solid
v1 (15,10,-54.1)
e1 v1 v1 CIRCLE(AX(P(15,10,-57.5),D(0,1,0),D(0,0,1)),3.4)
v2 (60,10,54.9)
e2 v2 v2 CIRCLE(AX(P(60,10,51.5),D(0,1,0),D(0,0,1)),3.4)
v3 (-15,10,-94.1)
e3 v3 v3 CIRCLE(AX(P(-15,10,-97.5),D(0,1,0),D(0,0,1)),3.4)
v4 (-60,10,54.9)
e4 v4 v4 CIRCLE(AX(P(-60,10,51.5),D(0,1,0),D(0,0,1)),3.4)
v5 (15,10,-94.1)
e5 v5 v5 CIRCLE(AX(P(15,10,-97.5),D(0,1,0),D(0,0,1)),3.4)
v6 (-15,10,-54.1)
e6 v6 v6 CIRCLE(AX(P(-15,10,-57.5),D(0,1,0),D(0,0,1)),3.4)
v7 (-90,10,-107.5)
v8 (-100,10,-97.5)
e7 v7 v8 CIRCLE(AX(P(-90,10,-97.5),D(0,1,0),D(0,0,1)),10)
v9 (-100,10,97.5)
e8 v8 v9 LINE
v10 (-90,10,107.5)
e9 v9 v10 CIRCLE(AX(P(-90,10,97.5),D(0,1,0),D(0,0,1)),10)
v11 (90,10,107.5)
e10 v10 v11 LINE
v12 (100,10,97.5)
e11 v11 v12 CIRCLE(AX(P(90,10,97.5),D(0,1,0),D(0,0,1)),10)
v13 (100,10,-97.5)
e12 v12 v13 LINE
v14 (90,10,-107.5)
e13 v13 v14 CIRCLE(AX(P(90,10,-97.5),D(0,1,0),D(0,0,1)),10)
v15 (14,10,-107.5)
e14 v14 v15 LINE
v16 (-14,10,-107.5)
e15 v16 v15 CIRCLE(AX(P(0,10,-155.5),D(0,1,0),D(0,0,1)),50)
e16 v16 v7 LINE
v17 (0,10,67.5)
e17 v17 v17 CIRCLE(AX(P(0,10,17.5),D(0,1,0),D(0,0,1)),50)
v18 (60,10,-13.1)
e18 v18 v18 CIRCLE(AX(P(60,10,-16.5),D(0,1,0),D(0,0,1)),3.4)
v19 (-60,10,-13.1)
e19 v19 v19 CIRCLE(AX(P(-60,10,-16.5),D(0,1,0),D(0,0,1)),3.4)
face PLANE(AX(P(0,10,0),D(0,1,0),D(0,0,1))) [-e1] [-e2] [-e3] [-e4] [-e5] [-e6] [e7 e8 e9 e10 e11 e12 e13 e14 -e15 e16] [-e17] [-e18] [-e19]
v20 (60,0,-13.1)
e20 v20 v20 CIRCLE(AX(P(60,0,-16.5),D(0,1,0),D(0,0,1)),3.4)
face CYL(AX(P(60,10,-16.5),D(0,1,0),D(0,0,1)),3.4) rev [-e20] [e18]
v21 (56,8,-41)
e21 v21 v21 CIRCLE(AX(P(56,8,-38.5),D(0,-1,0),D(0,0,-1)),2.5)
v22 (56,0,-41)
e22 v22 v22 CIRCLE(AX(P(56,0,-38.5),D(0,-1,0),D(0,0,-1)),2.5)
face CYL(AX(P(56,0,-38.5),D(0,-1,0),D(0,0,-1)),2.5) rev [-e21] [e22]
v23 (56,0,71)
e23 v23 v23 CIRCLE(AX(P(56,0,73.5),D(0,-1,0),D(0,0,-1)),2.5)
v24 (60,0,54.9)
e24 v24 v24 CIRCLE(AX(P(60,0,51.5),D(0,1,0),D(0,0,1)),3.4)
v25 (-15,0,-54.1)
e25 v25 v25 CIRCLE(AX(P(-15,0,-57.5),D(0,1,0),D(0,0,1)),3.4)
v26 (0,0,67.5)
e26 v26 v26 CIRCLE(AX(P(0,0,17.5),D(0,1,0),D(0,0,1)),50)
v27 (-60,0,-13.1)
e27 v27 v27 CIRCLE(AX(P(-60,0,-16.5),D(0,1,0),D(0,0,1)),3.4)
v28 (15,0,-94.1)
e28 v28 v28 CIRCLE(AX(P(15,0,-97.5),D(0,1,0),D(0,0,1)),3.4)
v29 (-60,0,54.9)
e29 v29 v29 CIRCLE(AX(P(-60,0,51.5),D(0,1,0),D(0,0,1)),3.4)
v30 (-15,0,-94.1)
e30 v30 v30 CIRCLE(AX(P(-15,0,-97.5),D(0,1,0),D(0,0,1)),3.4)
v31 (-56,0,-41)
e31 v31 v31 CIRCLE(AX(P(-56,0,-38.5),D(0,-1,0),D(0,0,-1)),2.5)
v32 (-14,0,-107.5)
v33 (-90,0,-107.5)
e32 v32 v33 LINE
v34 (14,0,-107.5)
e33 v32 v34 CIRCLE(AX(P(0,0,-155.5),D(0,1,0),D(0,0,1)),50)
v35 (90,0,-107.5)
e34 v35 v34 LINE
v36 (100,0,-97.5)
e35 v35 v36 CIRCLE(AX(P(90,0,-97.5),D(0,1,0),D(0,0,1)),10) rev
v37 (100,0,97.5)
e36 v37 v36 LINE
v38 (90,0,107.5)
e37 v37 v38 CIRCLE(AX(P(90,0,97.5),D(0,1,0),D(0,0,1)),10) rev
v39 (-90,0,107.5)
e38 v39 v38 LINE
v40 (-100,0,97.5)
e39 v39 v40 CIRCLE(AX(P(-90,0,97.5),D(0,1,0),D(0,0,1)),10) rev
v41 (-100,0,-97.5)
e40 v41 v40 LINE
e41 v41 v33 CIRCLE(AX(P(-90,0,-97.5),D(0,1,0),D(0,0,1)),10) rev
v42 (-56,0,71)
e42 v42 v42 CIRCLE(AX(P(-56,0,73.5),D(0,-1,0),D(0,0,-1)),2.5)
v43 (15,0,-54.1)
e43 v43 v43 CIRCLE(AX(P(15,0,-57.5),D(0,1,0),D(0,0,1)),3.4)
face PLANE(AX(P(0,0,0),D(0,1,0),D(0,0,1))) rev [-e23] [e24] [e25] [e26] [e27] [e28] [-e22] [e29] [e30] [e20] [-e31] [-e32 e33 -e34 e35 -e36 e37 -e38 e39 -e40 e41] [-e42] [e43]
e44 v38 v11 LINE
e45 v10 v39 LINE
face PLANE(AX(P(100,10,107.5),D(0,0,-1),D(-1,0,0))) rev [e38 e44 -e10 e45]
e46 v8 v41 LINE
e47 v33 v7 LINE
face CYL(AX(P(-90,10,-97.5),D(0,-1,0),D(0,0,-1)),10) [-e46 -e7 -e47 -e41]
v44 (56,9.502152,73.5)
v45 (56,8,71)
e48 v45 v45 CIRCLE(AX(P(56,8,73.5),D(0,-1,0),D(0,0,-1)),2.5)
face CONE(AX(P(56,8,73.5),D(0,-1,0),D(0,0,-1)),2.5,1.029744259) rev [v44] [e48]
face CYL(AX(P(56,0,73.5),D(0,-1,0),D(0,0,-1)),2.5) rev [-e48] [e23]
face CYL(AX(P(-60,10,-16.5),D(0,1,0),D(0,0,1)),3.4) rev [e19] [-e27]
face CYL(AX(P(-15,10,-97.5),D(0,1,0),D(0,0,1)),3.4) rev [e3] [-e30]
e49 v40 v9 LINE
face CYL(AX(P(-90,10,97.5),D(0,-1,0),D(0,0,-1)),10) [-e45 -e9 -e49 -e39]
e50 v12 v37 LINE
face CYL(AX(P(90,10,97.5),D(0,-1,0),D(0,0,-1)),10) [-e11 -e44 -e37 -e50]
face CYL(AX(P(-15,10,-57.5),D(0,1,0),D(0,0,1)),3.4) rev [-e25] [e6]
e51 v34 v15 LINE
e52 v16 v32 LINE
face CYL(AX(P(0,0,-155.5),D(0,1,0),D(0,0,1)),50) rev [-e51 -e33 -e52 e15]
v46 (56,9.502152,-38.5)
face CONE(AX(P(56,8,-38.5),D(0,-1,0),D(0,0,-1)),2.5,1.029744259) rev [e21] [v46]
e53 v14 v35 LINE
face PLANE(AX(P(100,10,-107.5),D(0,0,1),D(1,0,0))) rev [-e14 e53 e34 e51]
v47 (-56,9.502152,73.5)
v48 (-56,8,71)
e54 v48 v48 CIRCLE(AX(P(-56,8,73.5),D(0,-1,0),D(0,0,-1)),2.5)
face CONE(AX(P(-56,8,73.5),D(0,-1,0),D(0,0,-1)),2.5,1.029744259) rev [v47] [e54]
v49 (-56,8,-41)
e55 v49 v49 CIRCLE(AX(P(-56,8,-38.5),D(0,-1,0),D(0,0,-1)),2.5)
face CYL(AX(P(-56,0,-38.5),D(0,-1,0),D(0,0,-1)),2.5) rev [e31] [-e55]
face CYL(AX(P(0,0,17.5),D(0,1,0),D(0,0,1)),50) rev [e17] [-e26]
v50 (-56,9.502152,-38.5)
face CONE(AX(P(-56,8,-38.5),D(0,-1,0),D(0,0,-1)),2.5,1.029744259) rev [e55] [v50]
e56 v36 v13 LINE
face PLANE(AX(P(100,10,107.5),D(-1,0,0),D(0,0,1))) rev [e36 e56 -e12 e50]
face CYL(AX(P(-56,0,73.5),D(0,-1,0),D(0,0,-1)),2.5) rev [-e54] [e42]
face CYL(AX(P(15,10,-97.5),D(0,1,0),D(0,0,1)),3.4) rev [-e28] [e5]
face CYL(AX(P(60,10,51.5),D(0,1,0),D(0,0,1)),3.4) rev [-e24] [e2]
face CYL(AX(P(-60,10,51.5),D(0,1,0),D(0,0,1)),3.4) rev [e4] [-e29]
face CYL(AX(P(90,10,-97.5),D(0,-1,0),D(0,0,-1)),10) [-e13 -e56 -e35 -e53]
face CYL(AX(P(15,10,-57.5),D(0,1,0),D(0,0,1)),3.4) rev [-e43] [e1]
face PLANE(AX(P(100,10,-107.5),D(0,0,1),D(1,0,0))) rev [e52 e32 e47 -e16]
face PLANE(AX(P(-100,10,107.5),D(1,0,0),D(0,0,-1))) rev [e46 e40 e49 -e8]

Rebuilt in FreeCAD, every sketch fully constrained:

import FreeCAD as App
import Part
import Sketcher
Q = App.Units.Quantity


def edges_at(feature, points):
    """Names of the edges that pass closest to the given points."""
    edges = feature.Shape.Edges
    near = lambda p: min(range(len(edges)), key=lambda i: edges[i].distToShape(Part.Vertex(*p))[0])
    return sorted({f"Edge{near(p) + 1}" for p in points})


def add_polygon(sketch, points):
    """Adds a closed chain of lines whose ends are joined by coincident constraints."""
    first, n = sketch.GeometryCount, len(points)
    for a, b in zip(points, points[1:] + points[:1]):
        sketch.addGeometry(Part.LineSegment(App.Vector(*a, 0), App.Vector(*b, 0)), False)
    for i in range(n):
        sketch.addConstraint(Sketcher.Constraint("Coincident", first + i, 2, first + (i + 1) % n, 1))

doc = App.newDocument("Part")
body = doc.addObject("PartDesign::Body", "Body")

# Sketch on XZ plane
sketch1 = doc.addObject("Sketcher::SketchObject", "Sketch")
body.addObject(sketch1)
sketch1.AttachmentSupport = (doc.XZ_Plane, [""])
sketch1.MapMode = "FlatFace"
add_polygon(sketch1, [(-100, -108), (-100, 108), (100, 108), (100, -108)])  # lines 0-3
sketch1.addConstraint([
    Sketcher.Constraint("Vertical", 0),
    Sketcher.Constraint("Horizontal", 1),
    Sketcher.Constraint("Vertical", 2),
    Sketcher.Constraint("Horizontal", 3),
    Sketcher.Constraint("Symmetric", 0, 2, 2, 2, -1, 1),
    Sketcher.Constraint("DistanceX", 1, 1, 1, 2, Q("200 mm")),
    Sketcher.Constraint("DistanceY", 0, 1, 0, 2, Q("215 mm")),
])
pad1 = doc.addObject("PartDesign::Pad", "Pad")
body.addObject(pad1)
pad1.Profile = sketch1
pad1.Length = 10
pad1.Reversed = True

# Sketch on XZ plane
sketch2 = doc.addObject("Sketcher::SketchObject", "Sketch001")
body.addObject(sketch2)
sketch2.AttachmentSupport = (doc.XZ_Plane, [""])
sketch2.MapMode = "FlatFace"
sketch2.AttachmentOffset = App.Placement(App.Vector(0, 0, -10), App.Rotation())
sketch2.addGeometry([
    Part.Circle(App.Vector(-60, -16.5, 0), App.Vector(0, 0, 1), 3.4),
    Part.Circle(App.Vector(60, -16.5, 0), App.Vector(0, 0, 1), 3.4),
    Part.Circle(App.Vector(-60, 51.5, 0), App.Vector(0, 0, 1), 3.4),
    Part.Circle(App.Vector(60, 51.5, 0), App.Vector(0, 0, 1), 3.4),
], False)
sketch2.addConstraint([
    Sketcher.Constraint("Equal", 0, 1),
    Sketcher.Constraint("Equal", 1, 2),
    Sketcher.Constraint("Equal", 2, 3),
    Sketcher.Constraint("Symmetric", 0, 3, 1, 3, -2),
    Sketcher.Constraint("Symmetric", 2, 3, 3, 3, -2),
    Sketcher.Constraint("Vertical", 0, 3, 2, 3),
    Sketcher.Constraint("Diameter", 0, Q("6.8 mm")),
    Sketcher.Constraint("DistanceX", 0, 3, -1, 1, Q("60 mm")),
    Sketcher.Constraint("DistanceY", 0, 3, 2, 3, Q("68 mm")),
    Sketcher.Constraint("DistanceY", 0, 3, -1, 1, Q("16.5 mm")),
])
doc.recompute()
hole = doc.addObject("PartDesign::Hole", "Hole")
body.addObject(hole)
hole.Profile = sketch2
hole.ThreadType = "None"
hole.Diameter = 6.8
hole.DepthType = "Dimension"
hole.Depth = 19.75
hole.DrillPoint = "Angled"
hole.DrillPointAngle = 118
hole.Reversed = True

# Sketch on XZ plane
sketch3 = doc.addObject("Sketcher::SketchObject", "Sketch002")
body.addObject(sketch3)
sketch3.AttachmentSupport = (doc.XZ_Plane, [""])
sketch3.MapMode = "FlatFace"
sketch3.AttachmentOffset = App.Placement(App.Vector(0, 0, -10), App.Rotation())
sketch3.addGeometry([
    Part.Circle(App.Vector(-15, -97.5, 0), App.Vector(0, 0, 1), 3.4),
    Part.Circle(App.Vector(-15, -57.5, 0), App.Vector(0, 0, 1), 3.4),
    Part.Circle(App.Vector(15, -57.5, 0), App.Vector(0, 0, 1), 3.4),
    Part.Circle(App.Vector(15, -97.5, 0), App.Vector(0, 0, 1), 3.4),
], False)
sketch3.addConstraint([
    Sketcher.Constraint("Equal", 0, 1),
    Sketcher.Constraint("Equal", 1, 2),
    Sketcher.Constraint("Equal", 2, 3),
    Sketcher.Constraint("Symmetric", 1, 3, 2, 3, -2),
    Sketcher.Constraint("Symmetric", 0, 3, 3, 3, -2),
    Sketcher.Constraint("Vertical", 0, 3, 1, 3),
    Sketcher.Constraint("Diameter", 0, Q("6.8 mm")),
    Sketcher.Constraint("DistanceX", 0, 3, -1, 1, Q("15 mm")),
    Sketcher.Constraint("DistanceY", 0, 3, 1, 3, Q("40 mm")),
    Sketcher.Constraint("DistanceY", 0, 3, -1, 1, Q("97.5 mm")),
])
doc.recompute()
hole2 = doc.addObject("PartDesign::Hole", "Hole001")
body.addObject(hole2)
hole2.Profile = sketch3
hole2.ThreadType = "None"
hole2.Diameter = 6.8
hole2.DepthType = "Dimension"
hole2.Depth = 19.75
hole2.DrillPoint = "Angled"
hole2.DrillPointAngle = 118
hole2.Reversed = True

# Sketch on XZ plane
sketch4 = doc.addObject("Sketcher::SketchObject", "Sketch003")
body.addObject(sketch4)
sketch4.AttachmentSupport = (doc.XZ_Plane, [""])
sketch4.MapMode = "FlatFace"
sketch4.AttachmentOffset = App.Placement(App.Vector(0, 0, -10), App.Rotation())
sketch4.addGeometry(Part.Circle(App.Vector(0, 18, 0), App.Vector(0, 0, 1), 50), False)
sketch4.addConstraint([
    Sketcher.Constraint("PointOnObject", 0, 3, -2),
    Sketcher.Constraint("Diameter", 0, Q("100 mm")),
    Sketcher.Constraint("DistanceY", -1, 1, 0, 3, Q("17.5 mm")),
])
pocket1 = doc.addObject("PartDesign::Pocket", "Pocket")
body.addObject(pocket1)
pocket1.Profile = sketch4
pocket1.Length = 10
pocket1.Reversed = True

# Sketch on XZ plane
sketch5 = doc.addObject("Sketcher::SketchObject", "Sketch004")
body.addObject(sketch5)
sketch5.AttachmentSupport = (doc.XZ_Plane, [""])
sketch5.MapMode = "FlatFace"
sketch5.AttachmentOffset = App.Placement(App.Vector(0, 0, -10), App.Rotation())
sketch5.addGeometry(Part.Circle(App.Vector(0, -156, 0), App.Vector(0, 0, 1), 50), False)
sketch5.addConstraint([
    Sketcher.Constraint("PointOnObject", 0, 3, -2),
    Sketcher.Constraint("Diameter", 0, Q("100 mm")),
    Sketcher.Constraint("DistanceY", 0, 3, -1, 1, Q("155.5 mm")),
])
pocket2 = doc.addObject("PartDesign::Pocket", "Pocket001")
body.addObject(pocket2)
pocket2.Profile = sketch5
pocket2.Length = 10
pocket2.Reversed = True
doc.recompute()

fillet = doc.addObject("PartDesign::Fillet", "Fillet")
body.addObject(fillet)
fillet.Base = (pocket2, edges_at(pocket2, [
    (-100, 5, -107.5),
    (100, 5, -107.5),
    (100, 5, 107.5),
    (-100, 5, 107.5),
]))
fillet.Radius = 10

# Sketch on XZ plane
sketch6 = doc.addObject("Sketcher::SketchObject", "Sketch005")
body.addObject(sketch6)
sketch6.AttachmentSupport = (doc.XZ_Plane, [""])
sketch6.MapMode = "FlatFace"
sketch6.addGeometry([
    Part.Circle(App.Vector(-56, -38.5, 0), App.Vector(0, 0, 1), 2.5),
    Part.Circle(App.Vector(56, -38.5, 0), App.Vector(0, 0, 1), 2.5),
    Part.Circle(App.Vector(-56, 73.5, 0), App.Vector(0, 0, 1), 2.5),
    Part.Circle(App.Vector(56, 73.5, 0), App.Vector(0, 0, 1), 2.5),
], False)
sketch6.addConstraint([
    Sketcher.Constraint("Equal", 0, 1),
    Sketcher.Constraint("Equal", 1, 2),
    Sketcher.Constraint("Equal", 2, 3),
    Sketcher.Constraint("Symmetric", 0, 3, 1, 3, -2),
    Sketcher.Constraint("Symmetric", 2, 3, 3, 3, -2),
    Sketcher.Constraint("Vertical", 0, 3, 2, 3),
    Sketcher.Constraint("Diameter", 0, Q("5 mm")),
    Sketcher.Constraint("DistanceX", 0, 3, -1, 1, Q("56 mm")),
    Sketcher.Constraint("DistanceY", 0, 3, 2, 3, Q("112 mm")),
    Sketcher.Constraint("DistanceY", 0, 3, -1, 1, Q("38.5 mm")),
])
doc.recompute()
hole3 = doc.addObject("PartDesign::Hole", "Hole002")
body.addObject(hole3)
hole3.Profile = sketch6
hole3.ThreadType = "None"
hole3.Diameter = 5
hole3.DepthType = "Dimension"
hole3.Depth = 8
hole3.DrillPoint = "Angled"
hole3.DrillPointAngle = 118

doc.recompute()
